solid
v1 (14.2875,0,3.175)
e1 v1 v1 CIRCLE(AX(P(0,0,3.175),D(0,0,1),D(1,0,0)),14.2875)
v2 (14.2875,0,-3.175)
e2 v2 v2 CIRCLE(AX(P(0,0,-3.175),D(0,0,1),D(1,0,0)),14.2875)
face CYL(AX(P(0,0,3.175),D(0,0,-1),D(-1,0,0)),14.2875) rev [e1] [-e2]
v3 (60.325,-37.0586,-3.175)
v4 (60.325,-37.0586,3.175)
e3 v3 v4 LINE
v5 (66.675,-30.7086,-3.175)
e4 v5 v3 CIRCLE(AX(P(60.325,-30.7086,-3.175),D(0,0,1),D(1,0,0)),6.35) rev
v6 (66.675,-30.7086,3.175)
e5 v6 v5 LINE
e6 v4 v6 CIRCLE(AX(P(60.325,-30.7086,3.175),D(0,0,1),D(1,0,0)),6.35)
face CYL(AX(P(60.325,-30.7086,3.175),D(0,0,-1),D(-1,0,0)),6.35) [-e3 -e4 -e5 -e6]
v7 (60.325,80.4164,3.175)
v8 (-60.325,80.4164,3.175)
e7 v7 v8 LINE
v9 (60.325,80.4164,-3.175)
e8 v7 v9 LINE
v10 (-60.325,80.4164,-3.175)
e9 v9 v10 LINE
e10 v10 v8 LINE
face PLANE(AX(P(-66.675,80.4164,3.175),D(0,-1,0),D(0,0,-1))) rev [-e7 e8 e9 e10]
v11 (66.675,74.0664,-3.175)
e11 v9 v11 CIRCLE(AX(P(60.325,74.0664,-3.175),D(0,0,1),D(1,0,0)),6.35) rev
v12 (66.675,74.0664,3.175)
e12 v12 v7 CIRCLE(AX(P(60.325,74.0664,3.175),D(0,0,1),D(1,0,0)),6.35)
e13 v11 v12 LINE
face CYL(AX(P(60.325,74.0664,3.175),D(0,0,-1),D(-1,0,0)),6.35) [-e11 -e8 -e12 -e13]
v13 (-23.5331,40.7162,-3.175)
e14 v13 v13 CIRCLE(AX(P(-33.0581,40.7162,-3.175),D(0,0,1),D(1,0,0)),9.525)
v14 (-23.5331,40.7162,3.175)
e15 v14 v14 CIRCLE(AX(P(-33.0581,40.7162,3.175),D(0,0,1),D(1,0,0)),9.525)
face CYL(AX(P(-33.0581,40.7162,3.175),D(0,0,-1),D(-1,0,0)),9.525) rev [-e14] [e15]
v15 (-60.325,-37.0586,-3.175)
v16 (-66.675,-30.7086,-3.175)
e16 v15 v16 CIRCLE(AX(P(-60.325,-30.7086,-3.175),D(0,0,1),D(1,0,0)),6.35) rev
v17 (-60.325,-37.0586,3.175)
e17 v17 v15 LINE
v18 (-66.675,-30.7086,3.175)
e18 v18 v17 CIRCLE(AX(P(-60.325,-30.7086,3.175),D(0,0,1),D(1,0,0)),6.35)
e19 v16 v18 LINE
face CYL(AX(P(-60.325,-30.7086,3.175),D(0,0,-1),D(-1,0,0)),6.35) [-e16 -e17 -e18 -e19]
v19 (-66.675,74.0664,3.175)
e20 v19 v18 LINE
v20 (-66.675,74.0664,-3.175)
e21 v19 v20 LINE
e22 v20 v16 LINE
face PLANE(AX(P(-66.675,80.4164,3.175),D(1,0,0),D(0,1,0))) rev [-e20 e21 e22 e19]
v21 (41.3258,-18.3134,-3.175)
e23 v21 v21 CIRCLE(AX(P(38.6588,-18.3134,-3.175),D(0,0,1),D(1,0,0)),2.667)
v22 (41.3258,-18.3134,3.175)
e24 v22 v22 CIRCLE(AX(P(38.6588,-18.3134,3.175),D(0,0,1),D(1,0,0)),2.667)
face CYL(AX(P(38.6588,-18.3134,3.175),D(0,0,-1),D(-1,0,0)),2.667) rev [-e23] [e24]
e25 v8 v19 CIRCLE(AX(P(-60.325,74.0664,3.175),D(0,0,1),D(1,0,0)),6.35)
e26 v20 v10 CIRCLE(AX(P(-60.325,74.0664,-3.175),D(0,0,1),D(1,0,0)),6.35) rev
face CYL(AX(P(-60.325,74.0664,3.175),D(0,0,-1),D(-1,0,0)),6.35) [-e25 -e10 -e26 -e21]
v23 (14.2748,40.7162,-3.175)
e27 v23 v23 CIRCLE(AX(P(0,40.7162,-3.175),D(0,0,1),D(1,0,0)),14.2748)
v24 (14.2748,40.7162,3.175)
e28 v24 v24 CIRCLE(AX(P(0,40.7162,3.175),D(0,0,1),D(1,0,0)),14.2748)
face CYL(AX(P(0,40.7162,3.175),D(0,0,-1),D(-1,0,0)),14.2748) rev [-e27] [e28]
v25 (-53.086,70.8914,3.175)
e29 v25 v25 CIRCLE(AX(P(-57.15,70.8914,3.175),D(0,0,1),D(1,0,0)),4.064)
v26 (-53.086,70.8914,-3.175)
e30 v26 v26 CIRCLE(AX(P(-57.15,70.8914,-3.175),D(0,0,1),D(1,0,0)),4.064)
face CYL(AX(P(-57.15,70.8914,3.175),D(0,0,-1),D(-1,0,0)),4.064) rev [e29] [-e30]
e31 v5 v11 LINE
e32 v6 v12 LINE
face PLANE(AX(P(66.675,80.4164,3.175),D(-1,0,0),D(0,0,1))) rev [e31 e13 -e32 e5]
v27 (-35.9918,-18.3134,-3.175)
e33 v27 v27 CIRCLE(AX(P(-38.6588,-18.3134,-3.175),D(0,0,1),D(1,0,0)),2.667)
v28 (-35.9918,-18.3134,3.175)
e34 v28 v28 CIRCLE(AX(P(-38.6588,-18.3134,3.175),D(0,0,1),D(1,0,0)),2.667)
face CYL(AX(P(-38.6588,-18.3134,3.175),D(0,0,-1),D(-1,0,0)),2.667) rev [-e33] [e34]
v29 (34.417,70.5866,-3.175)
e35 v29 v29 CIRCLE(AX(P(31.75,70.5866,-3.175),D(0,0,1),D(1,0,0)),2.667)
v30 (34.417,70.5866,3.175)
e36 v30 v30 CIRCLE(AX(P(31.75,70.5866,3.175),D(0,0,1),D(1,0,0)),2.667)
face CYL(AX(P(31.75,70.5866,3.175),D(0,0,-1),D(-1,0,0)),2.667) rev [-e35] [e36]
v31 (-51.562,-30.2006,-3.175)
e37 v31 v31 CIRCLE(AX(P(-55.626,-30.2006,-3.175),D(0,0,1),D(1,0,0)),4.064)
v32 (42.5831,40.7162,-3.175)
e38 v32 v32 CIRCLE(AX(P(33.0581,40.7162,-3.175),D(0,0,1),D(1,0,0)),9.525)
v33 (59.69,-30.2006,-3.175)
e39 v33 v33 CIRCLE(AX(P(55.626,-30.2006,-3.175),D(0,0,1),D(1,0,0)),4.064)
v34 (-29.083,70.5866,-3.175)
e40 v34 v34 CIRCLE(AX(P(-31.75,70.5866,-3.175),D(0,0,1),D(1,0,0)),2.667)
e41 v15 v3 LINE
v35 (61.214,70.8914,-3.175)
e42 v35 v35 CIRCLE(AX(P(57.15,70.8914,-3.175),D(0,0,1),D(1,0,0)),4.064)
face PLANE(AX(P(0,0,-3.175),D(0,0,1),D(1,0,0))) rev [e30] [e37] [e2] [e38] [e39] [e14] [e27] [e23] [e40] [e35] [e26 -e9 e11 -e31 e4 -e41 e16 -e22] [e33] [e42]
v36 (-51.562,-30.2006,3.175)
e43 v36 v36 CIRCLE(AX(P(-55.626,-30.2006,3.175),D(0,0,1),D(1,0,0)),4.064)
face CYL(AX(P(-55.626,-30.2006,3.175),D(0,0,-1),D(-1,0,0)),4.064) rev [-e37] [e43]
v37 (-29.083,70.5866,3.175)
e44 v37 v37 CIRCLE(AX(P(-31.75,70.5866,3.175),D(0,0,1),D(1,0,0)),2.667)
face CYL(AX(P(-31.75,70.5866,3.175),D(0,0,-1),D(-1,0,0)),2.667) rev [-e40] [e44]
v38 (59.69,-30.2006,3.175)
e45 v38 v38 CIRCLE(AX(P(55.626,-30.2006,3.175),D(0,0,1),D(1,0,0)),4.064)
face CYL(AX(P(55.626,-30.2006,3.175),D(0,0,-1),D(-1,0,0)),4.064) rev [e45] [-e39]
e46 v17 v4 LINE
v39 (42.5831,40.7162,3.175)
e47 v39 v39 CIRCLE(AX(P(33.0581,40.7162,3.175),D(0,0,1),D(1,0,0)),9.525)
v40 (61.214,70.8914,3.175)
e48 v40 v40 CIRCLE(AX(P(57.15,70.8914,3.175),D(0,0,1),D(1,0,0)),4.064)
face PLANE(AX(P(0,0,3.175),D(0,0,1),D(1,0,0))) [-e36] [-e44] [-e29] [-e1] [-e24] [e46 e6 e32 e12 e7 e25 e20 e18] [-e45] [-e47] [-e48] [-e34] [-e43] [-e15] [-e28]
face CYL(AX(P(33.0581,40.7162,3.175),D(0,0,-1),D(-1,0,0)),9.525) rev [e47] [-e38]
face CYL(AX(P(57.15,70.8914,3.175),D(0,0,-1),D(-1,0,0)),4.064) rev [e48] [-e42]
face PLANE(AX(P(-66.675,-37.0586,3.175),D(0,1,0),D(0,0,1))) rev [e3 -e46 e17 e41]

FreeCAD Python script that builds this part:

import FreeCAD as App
import Part
import Sketcher
from FreeCAD import Vector
Q = App.Units.Quantity


def edges_at(feature, points):
    """Names of the edges that pass closest to the given points."""
    edges = feature.Shape.Edges
    near = lambda p: min(range(len(edges)), key=lambda i: edges[i].distToShape(Part.Vertex(*p))[0])
    return sorted({f"Edge{near(p) + 1}" for p in points})


def add_polygon(sketch, points):
    """Adds a closed chain of lines whose ends are joined by coincident constraints."""
    first, n = sketch.GeometryCount, len(points)
    for a, b in zip(points, points[1:] + points[:1]):
        sketch.addGeometry(Part.LineSegment(App.Vector(*a, 0), App.Vector(*b, 0)), False)
    for i in range(n):
        sketch.addConstraint(Sketcher.Constraint("Coincident", first + i, 2, first + (i + 1) % n, 1))

doc = App.newDocument("Part")
body = doc.addObject("PartDesign::Body", "Body")

sketch1 = body.newObject("Sketcher::SketchObject", "Sketch")
sketch1.AttachmentSupport = (doc.getObject("XY_Plane"), [""])
sketch1.MapMode = "FlatFace"
add_polygon(sketch1, [(-66.7, 80.4), (-66.7, -37.1), (66.7, -37.1), (66.7, 80.4)])
sketch1.addGeometry(Part.Circle(Vector(-55.6, -30.2, 0), Vector(0, 0, 1), 4.1), False)
sketch1.addGeometry(Part.Circle(Vector(-38.7, -18.3, 0), Vector(0, 0, 1), 2.7), False)
sketch1.addGeometry(Part.Circle(Vector(55.6, -30.2, 0), Vector(0, 0, 1), 4.1), False)
sketch1.addGeometry(Part.Circle(Vector(38.7, -18.3, 0), Vector(0, 0, 1), 2.7), False)
sketch1.addGeometry(Part.Circle(Vector(0, 0, 0), Vector(0, 0, 1), 14.3), False)
sketch1.addGeometry(Part.Circle(Vector(-33.1, 40.7, 0), Vector(0, 0, 1), 9.5), False)
sketch1.addGeometry(Part.Circle(Vector(-57.1, 70.9, 0), Vector(0, 0, 1), 4.1), False)
sketch1.addGeometry(Part.Circle(Vector(-31.8, 70.6, 0), Vector(0, 0, 1), 2.7), False)
sketch1.addGeometry(Part.Circle(Vector(0, 40.7, 0), Vector(0, 0, 1), 14.3), False)
sketch1.addGeometry(Part.Circle(Vector(33.1, 40.7, 0), Vector(0, 0, 1), 9.5), False)
sketch1.addGeometry(Part.Circle(Vector(31.8, 70.6, 0), Vector(0, 0, 1), 2.7), False)
sketch1.addGeometry(Part.Circle(Vector(57.1, 70.9, 0), Vector(0, 0, 1), 4.1), False)
sketch1.addConstraint(Sketcher.Constraint("Vertical", 0))
sketch1.addConstraint(Sketcher.Constraint("Horizontal", 1))
sketch1.addConstraint(Sketcher.Constraint("Vertical", 2))
sketch1.addConstraint(Sketcher.Constraint("Horizontal", 3))
sketch1.addConstraint(Sketcher.Constraint("Coincident", 8, 3, -1, 1))
sketch1.addConstraint(Sketcher.Constraint("Equal", 4, 6))
sketch1.addConstraint(Sketcher.Constraint("Equal", 5, 7))
sketch1.addConstraint(Sketcher.Constraint("Equal", 6, 10))
sketch1.addConstraint(Sketcher.Constraint("Equal", 7, 11))
sketch1.addConstraint(Sketcher.Constraint("Equal", 9, 13))
sketch1.addConstraint(Sketcher.Constraint("Equal", 11, 14))
sketch1.addConstraint(Sketcher.Constraint("Equal", 10, 15))
sketch1.addConstraint(Sketcher.Constraint("Symmetric", 4, 3, 6, 3, -2))
sketch1.addConstraint(Sketcher.Constraint("Symmetric", 5, 3, 7, 3, -2))
sketch1.addConstraint(Sketcher.Constraint("Symmetric", 9, 3, 13, 3, -2))
sketch1.addConstraint(Sketcher.Constraint("Symmetric", 11, 3, 14, 3, -2))
sketch1.addConstraint(Sketcher.Constraint("Symmetric", 10, 3, 15, 3, -2))
sketch1.addConstraint(Sketcher.Constraint("PointOnObject", 12, 3, -2))
sketch1.addConstraint(Sketcher.Constraint("Horizontal", 9, 3, 12, 3))
sketch1.addConstraint(Sketcher.Constraint("Diameter", 4, Q("0.32 in")))
sketch1.addConstraint(Sketcher.Constraint("Diameter", 5, Q("0.21 in")))
sketch1.addConstraint(Sketcher.Constraint("Diameter", 9, Q("0.75 in")))
sketch1.addConstraint(Sketcher.Constraint("Diameter", 8, Q("1.125 in")))
sketch1.addConstraint(Sketcher.Constraint("Diameter", 12, Q("1.124 in")))
sketch1.addConstraint(Sketcher.Constraint("DistanceX", 10, 3, 11, 3, Q("1 in")))
sketch1.addConstraint(Sketcher.Constraint("DistanceX", 1, 1, 1, 2, Q("5.25 in")))
sketch1.addConstraint(Sketcher.Constraint("DistanceY", 5, 3, 11, 3, Q("3.5 in")))
sketch1.addConstraint(Sketcher.Constraint("DistanceX", 11, 3, 14, 3, Q("2.5 in")))
sketch1.addConstraint(Sketcher.Constraint("DistanceY", 0, 2, 0, 1, Q("4.625 in")))
sketch1.addConstraint(Sketcher.Constraint("DistanceX", 4, 3, -1, 1, Q("2.19 in")))
sketch1.addConstraint(Sketcher.Constraint("DistanceY", 4, 3, 10, 3, Q("3.98 in")))
sketch1.addConstraint(Sketcher.Constraint("DistanceY", 0, 2, 4, 3, Q("0.27 in")))
sketch1.addConstraint(Sketcher.Constraint("DistanceY", 4, 3, -1, 1, Q("1.189 in")))
sketch1.addConstraint(Sketcher.Constraint("DistanceX", 5, 3, -1, 1, Q("1.522 in")))
sketch1.addConstraint(Sketcher.Constraint("DistanceY", 5, 3, -1, 1, Q("0.721 in")))
sketch1.addConstraint(Sketcher.Constraint("DistanceY", -1, 1, 9, 3, Q("1.603 in")))
sketch1.addConstraint(Sketcher.Constraint("DistanceX", 0, 2, -1, 1, Q("2.625 in")))
sketch1.addConstraint(Sketcher.Constraint("DistanceX", 9, 3, 13, 3, Q("2.603 in")))
pad1 = body.newObject("PartDesign::Pad", "Pad")
pad1.Profile = sketch1
pad1.Length = Q("0.25 in")
pad1.Midplane = True
doc.recompute()

fillet = body.newObject("PartDesign::Fillet", "Fillet")
fillet.Base = (pad1, edges_at(pad1, [
    (66.675, -37.059, 0),
    (-66.675, -37.059, 0),
    (-66.675, 80.416, 0),
    (66.675, 80.416, 0),
]))
fillet.Radius = Q("0.25 in")

doc.recompute()
